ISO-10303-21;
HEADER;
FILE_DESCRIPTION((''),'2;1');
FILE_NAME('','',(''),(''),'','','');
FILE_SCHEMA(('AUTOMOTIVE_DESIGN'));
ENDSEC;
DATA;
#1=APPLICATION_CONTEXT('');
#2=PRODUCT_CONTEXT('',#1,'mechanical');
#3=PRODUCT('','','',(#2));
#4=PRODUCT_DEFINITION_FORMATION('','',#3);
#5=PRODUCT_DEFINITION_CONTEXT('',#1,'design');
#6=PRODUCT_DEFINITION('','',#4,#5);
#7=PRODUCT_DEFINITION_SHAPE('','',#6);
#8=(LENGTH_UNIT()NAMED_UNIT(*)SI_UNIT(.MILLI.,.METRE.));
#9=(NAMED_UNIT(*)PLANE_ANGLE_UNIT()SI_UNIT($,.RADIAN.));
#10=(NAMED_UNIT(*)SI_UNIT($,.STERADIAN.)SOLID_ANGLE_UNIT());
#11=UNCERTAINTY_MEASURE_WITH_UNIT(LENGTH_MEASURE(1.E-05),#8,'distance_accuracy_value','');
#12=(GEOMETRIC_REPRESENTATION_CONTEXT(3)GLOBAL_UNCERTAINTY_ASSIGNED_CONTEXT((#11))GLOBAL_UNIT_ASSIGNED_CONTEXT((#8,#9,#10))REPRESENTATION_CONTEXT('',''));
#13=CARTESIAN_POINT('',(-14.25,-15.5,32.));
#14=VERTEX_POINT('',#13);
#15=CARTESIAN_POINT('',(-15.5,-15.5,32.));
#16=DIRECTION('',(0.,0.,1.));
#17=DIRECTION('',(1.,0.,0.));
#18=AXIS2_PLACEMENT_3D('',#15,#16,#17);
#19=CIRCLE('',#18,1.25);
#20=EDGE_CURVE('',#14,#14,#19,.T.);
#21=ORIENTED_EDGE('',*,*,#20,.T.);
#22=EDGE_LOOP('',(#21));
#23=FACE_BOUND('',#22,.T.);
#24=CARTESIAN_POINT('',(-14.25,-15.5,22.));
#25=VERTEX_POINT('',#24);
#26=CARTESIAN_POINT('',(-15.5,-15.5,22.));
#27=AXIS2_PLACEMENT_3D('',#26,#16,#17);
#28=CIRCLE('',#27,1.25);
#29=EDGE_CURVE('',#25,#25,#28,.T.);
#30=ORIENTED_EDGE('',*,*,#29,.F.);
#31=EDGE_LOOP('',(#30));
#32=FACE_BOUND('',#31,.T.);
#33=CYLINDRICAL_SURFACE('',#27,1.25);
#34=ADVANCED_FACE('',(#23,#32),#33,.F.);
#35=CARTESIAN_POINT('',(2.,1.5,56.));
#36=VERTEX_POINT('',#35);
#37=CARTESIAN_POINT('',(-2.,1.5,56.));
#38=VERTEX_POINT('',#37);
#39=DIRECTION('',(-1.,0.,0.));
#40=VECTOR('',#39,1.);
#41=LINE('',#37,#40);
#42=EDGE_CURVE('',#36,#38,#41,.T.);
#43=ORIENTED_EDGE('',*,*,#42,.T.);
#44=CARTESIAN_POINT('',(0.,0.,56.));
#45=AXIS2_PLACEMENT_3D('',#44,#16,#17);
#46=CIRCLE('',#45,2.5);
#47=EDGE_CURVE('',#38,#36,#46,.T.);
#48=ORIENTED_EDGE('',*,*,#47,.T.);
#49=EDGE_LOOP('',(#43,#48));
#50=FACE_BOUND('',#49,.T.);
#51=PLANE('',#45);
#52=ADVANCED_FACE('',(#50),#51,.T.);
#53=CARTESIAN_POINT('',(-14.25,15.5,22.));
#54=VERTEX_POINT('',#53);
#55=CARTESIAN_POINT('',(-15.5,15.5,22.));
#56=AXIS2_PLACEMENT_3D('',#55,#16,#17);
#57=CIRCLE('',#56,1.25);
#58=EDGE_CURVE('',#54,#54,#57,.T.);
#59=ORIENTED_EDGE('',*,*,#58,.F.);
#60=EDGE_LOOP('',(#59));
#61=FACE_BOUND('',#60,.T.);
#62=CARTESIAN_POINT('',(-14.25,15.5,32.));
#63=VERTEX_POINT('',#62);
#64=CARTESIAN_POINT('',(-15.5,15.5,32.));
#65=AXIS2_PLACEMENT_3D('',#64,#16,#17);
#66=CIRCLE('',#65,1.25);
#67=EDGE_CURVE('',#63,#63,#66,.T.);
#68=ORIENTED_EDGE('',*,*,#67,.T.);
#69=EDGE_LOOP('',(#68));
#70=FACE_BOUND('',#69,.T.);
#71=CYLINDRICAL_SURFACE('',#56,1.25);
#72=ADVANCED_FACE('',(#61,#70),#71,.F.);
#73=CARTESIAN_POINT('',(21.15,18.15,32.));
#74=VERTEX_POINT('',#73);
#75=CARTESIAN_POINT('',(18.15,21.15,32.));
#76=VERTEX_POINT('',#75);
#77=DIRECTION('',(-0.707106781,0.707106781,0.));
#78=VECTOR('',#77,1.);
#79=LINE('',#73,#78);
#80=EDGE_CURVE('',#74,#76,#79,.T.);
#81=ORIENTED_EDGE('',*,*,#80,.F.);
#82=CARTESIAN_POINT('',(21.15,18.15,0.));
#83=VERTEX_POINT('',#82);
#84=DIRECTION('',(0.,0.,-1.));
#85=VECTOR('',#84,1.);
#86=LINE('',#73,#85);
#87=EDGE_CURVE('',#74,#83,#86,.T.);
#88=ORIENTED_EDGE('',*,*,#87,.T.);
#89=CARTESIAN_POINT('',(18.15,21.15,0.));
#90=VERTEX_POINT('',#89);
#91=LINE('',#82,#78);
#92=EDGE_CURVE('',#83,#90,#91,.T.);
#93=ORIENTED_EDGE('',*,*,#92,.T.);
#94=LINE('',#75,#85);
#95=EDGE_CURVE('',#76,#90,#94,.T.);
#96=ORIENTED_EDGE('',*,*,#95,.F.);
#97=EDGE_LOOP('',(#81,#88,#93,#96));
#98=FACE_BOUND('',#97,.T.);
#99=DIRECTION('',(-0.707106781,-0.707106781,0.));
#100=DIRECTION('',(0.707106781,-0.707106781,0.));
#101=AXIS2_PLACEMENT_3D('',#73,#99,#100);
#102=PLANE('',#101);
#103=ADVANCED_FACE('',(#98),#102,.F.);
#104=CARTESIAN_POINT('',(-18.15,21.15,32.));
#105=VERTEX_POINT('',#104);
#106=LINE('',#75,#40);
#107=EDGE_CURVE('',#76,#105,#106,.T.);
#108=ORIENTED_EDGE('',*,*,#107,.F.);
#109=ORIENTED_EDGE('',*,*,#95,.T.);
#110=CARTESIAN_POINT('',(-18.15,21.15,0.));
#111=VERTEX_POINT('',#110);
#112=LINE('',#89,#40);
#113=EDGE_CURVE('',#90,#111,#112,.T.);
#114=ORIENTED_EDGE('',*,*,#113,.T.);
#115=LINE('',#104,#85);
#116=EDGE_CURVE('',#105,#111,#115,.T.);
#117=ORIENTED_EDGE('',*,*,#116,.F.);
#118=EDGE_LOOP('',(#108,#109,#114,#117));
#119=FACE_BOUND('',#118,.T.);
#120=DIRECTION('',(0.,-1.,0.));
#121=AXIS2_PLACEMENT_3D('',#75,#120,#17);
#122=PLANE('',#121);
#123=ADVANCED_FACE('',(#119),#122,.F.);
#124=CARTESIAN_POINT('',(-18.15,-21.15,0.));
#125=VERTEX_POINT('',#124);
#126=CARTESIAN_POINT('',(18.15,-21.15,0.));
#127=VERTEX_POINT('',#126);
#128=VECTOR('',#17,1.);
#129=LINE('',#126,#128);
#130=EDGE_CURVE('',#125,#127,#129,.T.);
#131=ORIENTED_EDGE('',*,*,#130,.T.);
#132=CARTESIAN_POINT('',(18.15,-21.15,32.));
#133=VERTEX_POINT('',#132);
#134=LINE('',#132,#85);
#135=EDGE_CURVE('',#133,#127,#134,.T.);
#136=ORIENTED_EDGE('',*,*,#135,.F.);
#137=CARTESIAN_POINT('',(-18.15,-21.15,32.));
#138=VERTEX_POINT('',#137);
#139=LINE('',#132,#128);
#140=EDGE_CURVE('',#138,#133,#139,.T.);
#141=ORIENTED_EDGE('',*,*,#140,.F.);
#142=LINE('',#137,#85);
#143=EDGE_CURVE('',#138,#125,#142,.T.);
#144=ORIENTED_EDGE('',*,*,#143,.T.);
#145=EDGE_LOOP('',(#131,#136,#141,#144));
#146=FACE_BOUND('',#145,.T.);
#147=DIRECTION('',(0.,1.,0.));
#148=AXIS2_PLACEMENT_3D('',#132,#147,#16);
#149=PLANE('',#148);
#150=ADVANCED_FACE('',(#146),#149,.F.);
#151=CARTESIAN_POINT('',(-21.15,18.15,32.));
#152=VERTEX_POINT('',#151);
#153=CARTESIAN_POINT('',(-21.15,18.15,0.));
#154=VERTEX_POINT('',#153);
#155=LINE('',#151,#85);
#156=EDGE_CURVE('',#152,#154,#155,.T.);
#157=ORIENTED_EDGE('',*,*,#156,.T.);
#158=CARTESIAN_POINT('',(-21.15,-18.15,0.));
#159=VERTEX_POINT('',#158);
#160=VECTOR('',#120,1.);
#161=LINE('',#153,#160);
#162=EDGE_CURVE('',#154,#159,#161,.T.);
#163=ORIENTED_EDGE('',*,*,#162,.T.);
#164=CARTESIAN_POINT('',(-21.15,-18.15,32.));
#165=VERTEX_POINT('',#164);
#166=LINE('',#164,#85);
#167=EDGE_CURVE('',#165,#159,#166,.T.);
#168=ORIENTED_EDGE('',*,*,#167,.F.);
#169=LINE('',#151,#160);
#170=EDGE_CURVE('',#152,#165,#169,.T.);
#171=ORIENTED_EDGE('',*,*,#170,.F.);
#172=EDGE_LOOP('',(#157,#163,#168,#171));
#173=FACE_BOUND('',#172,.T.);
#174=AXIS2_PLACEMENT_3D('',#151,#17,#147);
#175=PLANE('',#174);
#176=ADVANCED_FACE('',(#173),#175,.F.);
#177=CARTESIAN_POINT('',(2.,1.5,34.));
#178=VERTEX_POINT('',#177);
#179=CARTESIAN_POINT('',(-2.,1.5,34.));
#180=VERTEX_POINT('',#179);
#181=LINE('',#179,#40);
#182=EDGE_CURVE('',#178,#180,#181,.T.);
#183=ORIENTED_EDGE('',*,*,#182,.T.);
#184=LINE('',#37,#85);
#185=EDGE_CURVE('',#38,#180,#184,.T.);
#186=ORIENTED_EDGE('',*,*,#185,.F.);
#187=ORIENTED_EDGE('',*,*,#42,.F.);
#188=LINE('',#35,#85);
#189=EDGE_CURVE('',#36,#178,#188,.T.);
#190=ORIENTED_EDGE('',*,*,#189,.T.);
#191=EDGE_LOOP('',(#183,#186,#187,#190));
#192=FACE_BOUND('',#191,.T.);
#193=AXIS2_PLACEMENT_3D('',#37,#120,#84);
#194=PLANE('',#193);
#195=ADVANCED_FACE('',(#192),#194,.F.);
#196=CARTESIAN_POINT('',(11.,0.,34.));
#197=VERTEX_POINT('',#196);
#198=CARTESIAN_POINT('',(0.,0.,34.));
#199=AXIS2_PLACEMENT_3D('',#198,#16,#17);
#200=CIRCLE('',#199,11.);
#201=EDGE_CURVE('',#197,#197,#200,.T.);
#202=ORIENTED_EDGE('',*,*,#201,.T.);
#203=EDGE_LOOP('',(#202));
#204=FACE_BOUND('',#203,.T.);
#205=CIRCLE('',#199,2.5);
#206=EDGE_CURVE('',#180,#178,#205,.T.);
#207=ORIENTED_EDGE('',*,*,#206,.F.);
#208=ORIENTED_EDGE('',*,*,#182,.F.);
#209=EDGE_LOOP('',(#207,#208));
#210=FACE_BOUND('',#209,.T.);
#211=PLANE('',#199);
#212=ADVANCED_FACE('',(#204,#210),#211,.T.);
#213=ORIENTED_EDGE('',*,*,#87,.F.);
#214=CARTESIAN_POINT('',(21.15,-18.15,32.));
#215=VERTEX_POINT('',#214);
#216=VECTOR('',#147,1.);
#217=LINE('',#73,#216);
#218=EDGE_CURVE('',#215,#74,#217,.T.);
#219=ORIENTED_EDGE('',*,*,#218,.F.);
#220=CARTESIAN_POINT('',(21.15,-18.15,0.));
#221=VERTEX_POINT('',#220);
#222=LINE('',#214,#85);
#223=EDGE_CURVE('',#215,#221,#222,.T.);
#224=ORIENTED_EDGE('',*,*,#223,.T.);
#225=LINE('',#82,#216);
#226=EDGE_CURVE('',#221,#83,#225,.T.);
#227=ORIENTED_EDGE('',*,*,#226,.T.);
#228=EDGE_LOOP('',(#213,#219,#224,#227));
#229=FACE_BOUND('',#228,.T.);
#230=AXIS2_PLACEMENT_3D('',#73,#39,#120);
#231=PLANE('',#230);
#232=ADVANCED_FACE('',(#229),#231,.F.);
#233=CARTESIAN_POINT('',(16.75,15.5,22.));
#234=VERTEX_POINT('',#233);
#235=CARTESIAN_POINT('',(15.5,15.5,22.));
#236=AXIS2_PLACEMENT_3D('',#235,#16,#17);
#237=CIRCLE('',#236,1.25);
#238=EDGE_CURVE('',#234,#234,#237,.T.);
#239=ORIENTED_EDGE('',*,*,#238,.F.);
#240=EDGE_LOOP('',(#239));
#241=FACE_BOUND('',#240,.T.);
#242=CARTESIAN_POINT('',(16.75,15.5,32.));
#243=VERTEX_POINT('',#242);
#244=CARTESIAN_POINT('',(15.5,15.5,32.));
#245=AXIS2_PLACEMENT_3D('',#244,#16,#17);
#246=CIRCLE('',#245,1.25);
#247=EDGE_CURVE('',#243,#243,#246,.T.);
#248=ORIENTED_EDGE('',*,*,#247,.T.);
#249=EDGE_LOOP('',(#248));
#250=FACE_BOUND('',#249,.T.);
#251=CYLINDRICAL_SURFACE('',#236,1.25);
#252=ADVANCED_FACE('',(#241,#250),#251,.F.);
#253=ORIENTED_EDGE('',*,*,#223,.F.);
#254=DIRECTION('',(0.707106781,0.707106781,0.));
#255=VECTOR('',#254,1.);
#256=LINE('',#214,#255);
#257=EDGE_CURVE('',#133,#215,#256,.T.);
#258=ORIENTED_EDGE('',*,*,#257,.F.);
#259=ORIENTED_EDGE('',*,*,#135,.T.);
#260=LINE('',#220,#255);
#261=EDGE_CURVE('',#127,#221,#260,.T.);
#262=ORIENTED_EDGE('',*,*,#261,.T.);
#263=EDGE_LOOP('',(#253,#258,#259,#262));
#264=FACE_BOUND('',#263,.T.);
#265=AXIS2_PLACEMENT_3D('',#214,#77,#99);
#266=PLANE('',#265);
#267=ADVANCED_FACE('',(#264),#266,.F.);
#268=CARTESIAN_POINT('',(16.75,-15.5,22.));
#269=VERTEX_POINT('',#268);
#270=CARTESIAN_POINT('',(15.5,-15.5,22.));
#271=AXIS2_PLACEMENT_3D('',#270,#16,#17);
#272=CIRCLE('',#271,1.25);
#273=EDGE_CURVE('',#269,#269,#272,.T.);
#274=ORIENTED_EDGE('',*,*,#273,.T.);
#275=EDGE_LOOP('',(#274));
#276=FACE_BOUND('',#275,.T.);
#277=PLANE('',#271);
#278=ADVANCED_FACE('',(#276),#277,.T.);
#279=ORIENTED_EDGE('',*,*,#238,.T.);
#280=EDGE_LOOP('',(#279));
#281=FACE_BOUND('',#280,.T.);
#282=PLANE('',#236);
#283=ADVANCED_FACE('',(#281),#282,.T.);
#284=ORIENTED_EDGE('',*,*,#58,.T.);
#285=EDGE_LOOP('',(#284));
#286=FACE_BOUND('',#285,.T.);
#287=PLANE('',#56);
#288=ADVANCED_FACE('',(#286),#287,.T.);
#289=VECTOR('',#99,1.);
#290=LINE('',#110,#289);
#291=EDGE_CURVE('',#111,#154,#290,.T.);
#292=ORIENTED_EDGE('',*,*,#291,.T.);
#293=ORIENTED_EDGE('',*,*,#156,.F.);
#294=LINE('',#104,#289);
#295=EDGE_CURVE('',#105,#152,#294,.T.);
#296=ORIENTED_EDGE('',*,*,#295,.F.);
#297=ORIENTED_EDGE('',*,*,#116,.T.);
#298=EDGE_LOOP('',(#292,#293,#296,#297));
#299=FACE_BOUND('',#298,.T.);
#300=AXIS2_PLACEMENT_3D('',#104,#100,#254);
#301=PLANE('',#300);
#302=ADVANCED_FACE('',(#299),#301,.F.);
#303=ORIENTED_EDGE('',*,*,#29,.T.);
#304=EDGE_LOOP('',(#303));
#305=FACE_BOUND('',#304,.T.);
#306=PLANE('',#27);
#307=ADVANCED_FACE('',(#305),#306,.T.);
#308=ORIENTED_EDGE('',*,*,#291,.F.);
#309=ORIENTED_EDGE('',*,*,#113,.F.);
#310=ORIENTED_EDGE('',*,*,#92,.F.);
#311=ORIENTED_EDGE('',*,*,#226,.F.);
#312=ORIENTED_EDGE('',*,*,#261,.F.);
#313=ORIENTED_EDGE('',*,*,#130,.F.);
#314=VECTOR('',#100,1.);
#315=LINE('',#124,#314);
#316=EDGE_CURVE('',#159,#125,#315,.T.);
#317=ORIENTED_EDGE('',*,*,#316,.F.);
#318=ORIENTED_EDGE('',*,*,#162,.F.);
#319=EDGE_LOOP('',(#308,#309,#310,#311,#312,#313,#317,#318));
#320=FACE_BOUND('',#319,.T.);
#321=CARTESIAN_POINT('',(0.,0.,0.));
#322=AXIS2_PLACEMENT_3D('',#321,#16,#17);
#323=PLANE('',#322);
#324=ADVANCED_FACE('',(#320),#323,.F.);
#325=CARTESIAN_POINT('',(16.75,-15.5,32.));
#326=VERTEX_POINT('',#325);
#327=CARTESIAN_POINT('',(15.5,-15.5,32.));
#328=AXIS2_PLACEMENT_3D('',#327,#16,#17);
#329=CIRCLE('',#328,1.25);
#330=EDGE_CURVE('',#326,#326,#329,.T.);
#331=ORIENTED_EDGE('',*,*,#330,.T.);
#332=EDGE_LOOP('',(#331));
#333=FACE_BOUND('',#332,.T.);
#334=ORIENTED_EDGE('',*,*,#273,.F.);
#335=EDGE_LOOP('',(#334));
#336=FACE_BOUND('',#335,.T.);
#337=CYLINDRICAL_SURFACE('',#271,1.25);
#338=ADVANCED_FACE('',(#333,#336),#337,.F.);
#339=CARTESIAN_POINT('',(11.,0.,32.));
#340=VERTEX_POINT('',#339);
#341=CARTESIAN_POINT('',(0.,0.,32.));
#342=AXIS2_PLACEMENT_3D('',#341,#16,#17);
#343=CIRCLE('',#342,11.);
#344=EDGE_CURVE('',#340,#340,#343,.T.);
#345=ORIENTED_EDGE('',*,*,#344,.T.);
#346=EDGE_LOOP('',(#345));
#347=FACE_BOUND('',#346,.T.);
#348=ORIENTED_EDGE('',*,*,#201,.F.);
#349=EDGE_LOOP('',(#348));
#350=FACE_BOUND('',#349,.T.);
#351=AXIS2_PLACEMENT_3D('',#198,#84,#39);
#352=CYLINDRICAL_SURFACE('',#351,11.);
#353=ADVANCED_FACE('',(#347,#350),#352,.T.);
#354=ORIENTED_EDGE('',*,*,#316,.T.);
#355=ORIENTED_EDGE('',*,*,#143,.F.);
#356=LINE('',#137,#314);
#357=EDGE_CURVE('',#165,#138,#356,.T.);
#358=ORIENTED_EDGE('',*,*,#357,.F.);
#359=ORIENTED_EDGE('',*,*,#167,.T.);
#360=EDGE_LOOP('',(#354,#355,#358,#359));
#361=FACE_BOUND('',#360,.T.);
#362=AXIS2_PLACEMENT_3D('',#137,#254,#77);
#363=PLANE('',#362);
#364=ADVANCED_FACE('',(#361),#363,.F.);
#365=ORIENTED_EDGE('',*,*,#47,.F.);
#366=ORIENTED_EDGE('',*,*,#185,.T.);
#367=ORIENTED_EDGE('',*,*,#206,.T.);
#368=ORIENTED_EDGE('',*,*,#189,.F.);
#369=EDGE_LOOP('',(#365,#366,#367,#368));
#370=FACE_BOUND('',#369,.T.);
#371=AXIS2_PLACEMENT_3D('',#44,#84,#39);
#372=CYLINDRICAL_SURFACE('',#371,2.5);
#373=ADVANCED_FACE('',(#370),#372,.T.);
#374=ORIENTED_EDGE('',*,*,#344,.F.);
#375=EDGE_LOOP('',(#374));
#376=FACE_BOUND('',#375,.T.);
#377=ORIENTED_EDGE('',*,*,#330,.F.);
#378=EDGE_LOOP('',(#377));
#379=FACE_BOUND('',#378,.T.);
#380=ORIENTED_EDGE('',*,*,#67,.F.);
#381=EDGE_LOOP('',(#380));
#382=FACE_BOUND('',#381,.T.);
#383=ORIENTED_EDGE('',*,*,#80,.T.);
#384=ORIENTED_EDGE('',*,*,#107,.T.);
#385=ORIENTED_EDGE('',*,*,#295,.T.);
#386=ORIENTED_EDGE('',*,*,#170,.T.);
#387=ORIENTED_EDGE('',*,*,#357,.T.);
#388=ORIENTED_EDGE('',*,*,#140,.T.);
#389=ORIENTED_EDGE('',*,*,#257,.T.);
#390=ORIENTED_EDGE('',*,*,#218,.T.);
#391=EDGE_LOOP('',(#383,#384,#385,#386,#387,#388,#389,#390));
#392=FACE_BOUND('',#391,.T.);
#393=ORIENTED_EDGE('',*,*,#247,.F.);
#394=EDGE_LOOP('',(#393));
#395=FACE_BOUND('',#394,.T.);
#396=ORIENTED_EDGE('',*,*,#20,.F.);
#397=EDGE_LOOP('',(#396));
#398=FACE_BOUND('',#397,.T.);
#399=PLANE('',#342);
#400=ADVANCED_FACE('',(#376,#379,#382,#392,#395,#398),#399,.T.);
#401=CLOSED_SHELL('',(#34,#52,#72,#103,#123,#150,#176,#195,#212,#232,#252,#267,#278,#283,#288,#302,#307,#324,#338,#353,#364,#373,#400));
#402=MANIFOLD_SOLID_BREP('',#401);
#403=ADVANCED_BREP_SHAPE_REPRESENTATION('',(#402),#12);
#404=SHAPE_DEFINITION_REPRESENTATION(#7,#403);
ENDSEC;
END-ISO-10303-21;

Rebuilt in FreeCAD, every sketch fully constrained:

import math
import FreeCAD as App
import Part
import Sketcher
Q = App.Units.Quantity


def add_polygon(sketch, points):
    """Adds a closed chain of lines whose ends are joined by coincident constraints."""
    first, n = sketch.GeometryCount, len(points)
    for a, b in zip(points, points[1:] + points[:1]):
        sketch.addGeometry(Part.LineSegment(App.Vector(*a, 0), App.Vector(*b, 0)), False)
    for i in range(n):
        sketch.addConstraint(Sketcher.Constraint("Coincident", first + i, 2, first + (i + 1) % n, 1))

doc = App.newDocument("Part")
body = doc.addObject("PartDesign::Body", "Body")

# Sketch on XY plane
sketch1 = body.newObject("Sketcher::SketchObject", "Sketch")
sketch1.AttachmentSupport = (doc.getObject("XY_Plane"), [""])
sketch1.MapMode = "FlatFace"
add_polygon(sketch1, [(21.1, 18.1), (18.1, 21.1), (-18.1, 21.1), (-21.1, 18.1), (-21.1, -18.1), (-18.1, -21.1), (18.1, -21.1), (21.1, -18.1)])  # lines 0-7
sketch1.addConstraint(Sketcher.Constraint("Horizontal", 1))
sketch1.addConstraint(Sketcher.Constraint("Vertical", 3))
sketch1.addConstraint(Sketcher.Constraint("Horizontal", 5))
sketch1.addConstraint(Sketcher.Constraint("Vertical", 7))
sketch1.addConstraint(Sketcher.Constraint("Symmetric", 0, 2, 4, 2, -1, 1))
sketch1.addConstraint(Sketcher.Constraint("Symmetric", 2, 2, 6, 2, -1, 1))
sketch1.addConstraint(Sketcher.Constraint("Perpendicular", 0, 2))
sketch1.addConstraint(Sketcher.Constraint("Perpendicular", 2, 4))
sketch1.addConstraint(Sketcher.Constraint("Perpendicular", 4, 6))
sketch1.addConstraint(Sketcher.Constraint("Horizontal", 3, 2, 6, 2))
sketch1.addConstraint(Sketcher.Constraint("Vertical", 1, 2, 4, 2))
sketch1.addConstraint(Sketcher.Constraint("Equal", 5, 3))
sketch1.addConstraint(Sketcher.Constraint("DistanceX", 1, 2, 1, 1, Q("36.3 mm")))
sketch1.addConstraint(Sketcher.Constraint("DistanceX", 2, 2, 1, 2, Q("3 mm")))
pad1 = body.newObject("PartDesign::Pad", "Pad")
pad1.Profile = sketch1
pad1.Length = 32

# Sketch on XY plane
sketch2 = body.newObject("Sketcher::SketchObject", "Sketch001")
sketch2.AttachmentSupport = (doc.getObject("XY_Plane"), [""])
sketch2.MapMode = "FlatFace"
sketch2.AttachmentOffset = App.Placement(App.Vector(0, 0, 32), App.Rotation())
sketch2.addGeometry(Part.Circle(App.Vector(0, 0, 0), App.Vector(0, 0, 1), 11), False)
sketch2.addConstraint(Sketcher.Constraint("Coincident", 0, 3, -1, 1))
sketch2.addConstraint(Sketcher.Constraint("Diameter", 0, Q("22 mm")))
pad2 = body.newObject("PartDesign::Pad", "Pad001")
pad2.Profile = sketch2
pad2.Length = 2

# Sketch on XY plane
sketch3 = body.newObject("Sketcher::SketchObject", "Sketch002")
sketch3.AttachmentSupport = (doc.getObject("XY_Plane"), [""])
sketch3.MapMode = "FlatFace"
sketch3.AttachmentOffset = App.Placement(App.Vector(0, 0, 34), App.Rotation())
sketch3.addGeometry(Part.LineSegment(App.Vector(2, 1.5, 0), App.Vector(-2, 1.5, 0)), False)
sketch3.addGeometry(Part.ArcOfCircle(Part.Circle(App.Vector(0, 0, 0), App.Vector(0, 0, 1), 2.5), math.radians(143), math.radians(397)), False)
sketch3.addConstraint(Sketcher.Constraint("Coincident", 0, 1, 1, 2))
sketch3.addConstraint(Sketcher.Constraint("Coincident", 1, 1, 0, 2))
sketch3.addConstraint(Sketcher.Constraint("Horizontal", 0))
sketch3.addConstraint(Sketcher.Constraint("Coincident", 1, 3, -1, 1))
sketch3.addConstraint(Sketcher.Constraint("Radius", 1, Q("2.5 mm")))
sketch3.addConstraint(Sketcher.Constraint("DistanceX", 0, 2, 0, 1, Q("4 mm")))
pad3 = body.newObject("PartDesign::Pad", "Pad002")
pad3.Profile = sketch3
pad3.Length = 22

# Sketch on XY plane
sketch4 = body.newObject("Sketcher::SketchObject", "Sketch003")
sketch4.AttachmentSupport = (doc.getObject("XY_Plane"), [""])
sketch4.MapMode = "FlatFace"
sketch4.AttachmentOffset = App.Placement(App.Vector(0, 0, 32), App.Rotation())
sketch4.addGeometry(Part.Circle(App.Vector(-15.5, 15.5, 0), App.Vector(0, 0, 1), 1.2), False)
sketch4.addGeometry(Part.Circle(App.Vector(15.5, 15.5, 0), App.Vector(0, 0, 1), 1.2), False)
sketch4.addGeometry(Part.Circle(App.Vector(15.5, -15.5, 0), App.Vector(0, 0, 1), 1.2), False)
sketch4.addGeometry(Part.Circle(App.Vector(-15.5, -15.5, 0), App.Vector(0, 0, 1), 1.2), False)
sketch4.addConstraint(Sketcher.Constraint("Equal", 0, 1))
sketch4.addConstraint(Sketcher.Constraint("Equal", 1, 2))
sketch4.addConstraint(Sketcher.Constraint("Equal", 2, 3))
sketch4.addConstraint(Sketcher.Constraint("Symmetric", 0, 3, 2, 3, -1, 1))
sketch4.addConstraint(Sketcher.Constraint("Symmetric", 1, 3, 3, 3, -1, 1))
sketch4.addConstraint(Sketcher.Constraint("Symmetric", 0, 3, 1, 3, -2))
sketch4.addConstraint(Sketcher.Constraint("Diameter", 0, Q("2.5 mm")))
sketch4.addConstraint(Sketcher.Constraint("DistanceX", 0, 3, 1, 3, Q("31 mm")))
sketch4.addConstraint(Sketcher.Constraint("DistanceY", 2, 3, 1, 3, Q("31 mm")))
pocket1 = body.newObject("PartDesign::Pocket", "Pocket")
pocket1.Profile = sketch4
pocket1.Length = 10

doc.recompute()
